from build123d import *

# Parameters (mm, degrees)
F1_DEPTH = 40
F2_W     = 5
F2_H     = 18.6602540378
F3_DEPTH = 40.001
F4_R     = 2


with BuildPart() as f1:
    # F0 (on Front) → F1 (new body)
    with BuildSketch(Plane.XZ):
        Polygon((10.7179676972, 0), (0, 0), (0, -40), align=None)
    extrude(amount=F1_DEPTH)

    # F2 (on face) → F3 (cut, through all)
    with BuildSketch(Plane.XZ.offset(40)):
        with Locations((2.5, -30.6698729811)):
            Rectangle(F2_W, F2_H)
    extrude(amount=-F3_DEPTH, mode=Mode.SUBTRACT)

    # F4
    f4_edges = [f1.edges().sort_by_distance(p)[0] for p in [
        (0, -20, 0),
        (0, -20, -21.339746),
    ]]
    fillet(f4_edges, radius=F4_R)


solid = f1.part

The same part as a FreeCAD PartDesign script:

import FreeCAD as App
import Part
import Sketcher
from FreeCAD import Vector
Q = App.Units.Quantity


def edges_at(feature, points):
    """Names of the edges that pass closest to the given points."""
    edges = feature.Shape.Edges
    near = lambda p: min(range(len(edges)), key=lambda i: edges[i].distToShape(Part.Vertex(*p))[0])
    return sorted({f"Edge{near(p) + 1}" for p in points})

doc = App.newDocument("Part")
params = doc.addObject("Spreadsheet::Sheet", "Params")
for row, (alias, value) in enumerate([
    ("sketch1_height", "40 mm"),
    ("pad1_length", "40 mm"),
    ("sketch2_width", "5 mm"),
    ("fillet_radius", "2 mm"),
], start=1):
    params.set(f"A{row}", alias)
    params.set(f"B{row}", "=" + value)
    params.setAlias(f"B{row}", alias)

body = doc.addObject("PartDesign::Body", "Body")

# Sketch on XZ plane
sketch1 = doc.addObject("Sketcher::SketchObject", "Sketch")
body.addObject(sketch1)
sketch1.AttachmentSupport = (doc.XZ_Plane, [""])
sketch1.MapMode = "FlatFace"
sketch1.addGeometry([
    Part.LineSegment(Vector(11, 0, 0), Vector(0, 0, 0)),
    Part.LineSegment(Vector(0, 0, 0), Vector(0, -40, 0)),
    Part.LineSegment(Vector(0, -40, 0), Vector(11, 0, 0)),
], False)
sketch1.addConstraint([
    Sketcher.Constraint("Coincident", 0, 2, 1, 1),
    Sketcher.Constraint("Coincident", 1, 2, 2, 1),
    Sketcher.Constraint("Coincident", 2, 2, 0, 1),
    Sketcher.Constraint("Horizontal", 0),
    Sketcher.Constraint("Vertical", 1),
    Sketcher.Constraint("Coincident", 0, 2, -1, 1),
    Sketcher.Constraint("DistanceY", 1, 2, 1, 1, 40.0),
    Sketcher.Constraint("Angle", 2, Q("75 deg")),
])
sketch1.setExpression("Constraints[6]", "Params.sketch1_height")
pad1 = doc.addObject("PartDesign::Pad", "Pad")
body.addObject(pad1)
pad1.Profile = sketch1
pad1.setExpression("Length", "Params.pad1_length")

# Sketch on XZ plane
sketch2 = doc.addObject("Sketcher::SketchObject", "Sketch001")
body.addObject(sketch2)
sketch2.AttachmentSupport = (doc.XZ_Plane, [""])
sketch2.MapMode = "FlatFace"
sketch2.AttachmentOffset = App.Placement(Vector(0, 0, 40), App.Rotation())
sketch2.addGeometry([
    Part.LineSegment(Vector(0, -21, 0), Vector(0, -40, 0)),
    Part.LineSegment(Vector(0, -40, 0), Vector(5, -40, 0)),
    Part.LineSegment(Vector(5, -40, 0), Vector(5, -21, 0)),
    Part.LineSegment(Vector(5, -21, 0), Vector(0, -21, 0)),
], False)
sketch2.addConstraint([
    Sketcher.Constraint("Coincident", 0, 2, 1, 1),
    Sketcher.Constraint("Coincident", 1, 2, 2, 1),
    Sketcher.Constraint("Coincident", 2, 2, 3, 1),
    Sketcher.Constraint("Coincident", 3, 2, 0, 1),
    Sketcher.Constraint("Vertical", 0),
    Sketcher.Constraint("Horizontal", 1),
    Sketcher.Constraint("Vertical", 2),
    Sketcher.Constraint("Horizontal", 3),
    Sketcher.Constraint("PointOnObject", 0, 2, -2),
    Sketcher.Constraint("DistanceX", 1, 1, 1, 2, 5.0),
    Sketcher.Constraint("DistanceY", 0, 2, -1, 1, 40.0),
    Sketcher.Constraint("DistanceY", 0, 2, 0, 1, 18.660254),
])
sketch2.setExpression("Constraints[9]", "Params.sketch2_width")
pocket1 = doc.addObject("PartDesign::Pocket", "Pocket")
body.addObject(pocket1)
pocket1.Profile = sketch2
pocket1.Type = "ThroughAll"
doc.recompute()

fillet = doc.addObject("PartDesign::Fillet", "Fillet")
body.addObject(fillet)
fillet.Base = (pocket1, edges_at(pocket1, [(0, -20, 0), (0, -20, -21.34)]))
fillet.setExpression("Radius", "Params.fillet_radius")

doc.recompute()
